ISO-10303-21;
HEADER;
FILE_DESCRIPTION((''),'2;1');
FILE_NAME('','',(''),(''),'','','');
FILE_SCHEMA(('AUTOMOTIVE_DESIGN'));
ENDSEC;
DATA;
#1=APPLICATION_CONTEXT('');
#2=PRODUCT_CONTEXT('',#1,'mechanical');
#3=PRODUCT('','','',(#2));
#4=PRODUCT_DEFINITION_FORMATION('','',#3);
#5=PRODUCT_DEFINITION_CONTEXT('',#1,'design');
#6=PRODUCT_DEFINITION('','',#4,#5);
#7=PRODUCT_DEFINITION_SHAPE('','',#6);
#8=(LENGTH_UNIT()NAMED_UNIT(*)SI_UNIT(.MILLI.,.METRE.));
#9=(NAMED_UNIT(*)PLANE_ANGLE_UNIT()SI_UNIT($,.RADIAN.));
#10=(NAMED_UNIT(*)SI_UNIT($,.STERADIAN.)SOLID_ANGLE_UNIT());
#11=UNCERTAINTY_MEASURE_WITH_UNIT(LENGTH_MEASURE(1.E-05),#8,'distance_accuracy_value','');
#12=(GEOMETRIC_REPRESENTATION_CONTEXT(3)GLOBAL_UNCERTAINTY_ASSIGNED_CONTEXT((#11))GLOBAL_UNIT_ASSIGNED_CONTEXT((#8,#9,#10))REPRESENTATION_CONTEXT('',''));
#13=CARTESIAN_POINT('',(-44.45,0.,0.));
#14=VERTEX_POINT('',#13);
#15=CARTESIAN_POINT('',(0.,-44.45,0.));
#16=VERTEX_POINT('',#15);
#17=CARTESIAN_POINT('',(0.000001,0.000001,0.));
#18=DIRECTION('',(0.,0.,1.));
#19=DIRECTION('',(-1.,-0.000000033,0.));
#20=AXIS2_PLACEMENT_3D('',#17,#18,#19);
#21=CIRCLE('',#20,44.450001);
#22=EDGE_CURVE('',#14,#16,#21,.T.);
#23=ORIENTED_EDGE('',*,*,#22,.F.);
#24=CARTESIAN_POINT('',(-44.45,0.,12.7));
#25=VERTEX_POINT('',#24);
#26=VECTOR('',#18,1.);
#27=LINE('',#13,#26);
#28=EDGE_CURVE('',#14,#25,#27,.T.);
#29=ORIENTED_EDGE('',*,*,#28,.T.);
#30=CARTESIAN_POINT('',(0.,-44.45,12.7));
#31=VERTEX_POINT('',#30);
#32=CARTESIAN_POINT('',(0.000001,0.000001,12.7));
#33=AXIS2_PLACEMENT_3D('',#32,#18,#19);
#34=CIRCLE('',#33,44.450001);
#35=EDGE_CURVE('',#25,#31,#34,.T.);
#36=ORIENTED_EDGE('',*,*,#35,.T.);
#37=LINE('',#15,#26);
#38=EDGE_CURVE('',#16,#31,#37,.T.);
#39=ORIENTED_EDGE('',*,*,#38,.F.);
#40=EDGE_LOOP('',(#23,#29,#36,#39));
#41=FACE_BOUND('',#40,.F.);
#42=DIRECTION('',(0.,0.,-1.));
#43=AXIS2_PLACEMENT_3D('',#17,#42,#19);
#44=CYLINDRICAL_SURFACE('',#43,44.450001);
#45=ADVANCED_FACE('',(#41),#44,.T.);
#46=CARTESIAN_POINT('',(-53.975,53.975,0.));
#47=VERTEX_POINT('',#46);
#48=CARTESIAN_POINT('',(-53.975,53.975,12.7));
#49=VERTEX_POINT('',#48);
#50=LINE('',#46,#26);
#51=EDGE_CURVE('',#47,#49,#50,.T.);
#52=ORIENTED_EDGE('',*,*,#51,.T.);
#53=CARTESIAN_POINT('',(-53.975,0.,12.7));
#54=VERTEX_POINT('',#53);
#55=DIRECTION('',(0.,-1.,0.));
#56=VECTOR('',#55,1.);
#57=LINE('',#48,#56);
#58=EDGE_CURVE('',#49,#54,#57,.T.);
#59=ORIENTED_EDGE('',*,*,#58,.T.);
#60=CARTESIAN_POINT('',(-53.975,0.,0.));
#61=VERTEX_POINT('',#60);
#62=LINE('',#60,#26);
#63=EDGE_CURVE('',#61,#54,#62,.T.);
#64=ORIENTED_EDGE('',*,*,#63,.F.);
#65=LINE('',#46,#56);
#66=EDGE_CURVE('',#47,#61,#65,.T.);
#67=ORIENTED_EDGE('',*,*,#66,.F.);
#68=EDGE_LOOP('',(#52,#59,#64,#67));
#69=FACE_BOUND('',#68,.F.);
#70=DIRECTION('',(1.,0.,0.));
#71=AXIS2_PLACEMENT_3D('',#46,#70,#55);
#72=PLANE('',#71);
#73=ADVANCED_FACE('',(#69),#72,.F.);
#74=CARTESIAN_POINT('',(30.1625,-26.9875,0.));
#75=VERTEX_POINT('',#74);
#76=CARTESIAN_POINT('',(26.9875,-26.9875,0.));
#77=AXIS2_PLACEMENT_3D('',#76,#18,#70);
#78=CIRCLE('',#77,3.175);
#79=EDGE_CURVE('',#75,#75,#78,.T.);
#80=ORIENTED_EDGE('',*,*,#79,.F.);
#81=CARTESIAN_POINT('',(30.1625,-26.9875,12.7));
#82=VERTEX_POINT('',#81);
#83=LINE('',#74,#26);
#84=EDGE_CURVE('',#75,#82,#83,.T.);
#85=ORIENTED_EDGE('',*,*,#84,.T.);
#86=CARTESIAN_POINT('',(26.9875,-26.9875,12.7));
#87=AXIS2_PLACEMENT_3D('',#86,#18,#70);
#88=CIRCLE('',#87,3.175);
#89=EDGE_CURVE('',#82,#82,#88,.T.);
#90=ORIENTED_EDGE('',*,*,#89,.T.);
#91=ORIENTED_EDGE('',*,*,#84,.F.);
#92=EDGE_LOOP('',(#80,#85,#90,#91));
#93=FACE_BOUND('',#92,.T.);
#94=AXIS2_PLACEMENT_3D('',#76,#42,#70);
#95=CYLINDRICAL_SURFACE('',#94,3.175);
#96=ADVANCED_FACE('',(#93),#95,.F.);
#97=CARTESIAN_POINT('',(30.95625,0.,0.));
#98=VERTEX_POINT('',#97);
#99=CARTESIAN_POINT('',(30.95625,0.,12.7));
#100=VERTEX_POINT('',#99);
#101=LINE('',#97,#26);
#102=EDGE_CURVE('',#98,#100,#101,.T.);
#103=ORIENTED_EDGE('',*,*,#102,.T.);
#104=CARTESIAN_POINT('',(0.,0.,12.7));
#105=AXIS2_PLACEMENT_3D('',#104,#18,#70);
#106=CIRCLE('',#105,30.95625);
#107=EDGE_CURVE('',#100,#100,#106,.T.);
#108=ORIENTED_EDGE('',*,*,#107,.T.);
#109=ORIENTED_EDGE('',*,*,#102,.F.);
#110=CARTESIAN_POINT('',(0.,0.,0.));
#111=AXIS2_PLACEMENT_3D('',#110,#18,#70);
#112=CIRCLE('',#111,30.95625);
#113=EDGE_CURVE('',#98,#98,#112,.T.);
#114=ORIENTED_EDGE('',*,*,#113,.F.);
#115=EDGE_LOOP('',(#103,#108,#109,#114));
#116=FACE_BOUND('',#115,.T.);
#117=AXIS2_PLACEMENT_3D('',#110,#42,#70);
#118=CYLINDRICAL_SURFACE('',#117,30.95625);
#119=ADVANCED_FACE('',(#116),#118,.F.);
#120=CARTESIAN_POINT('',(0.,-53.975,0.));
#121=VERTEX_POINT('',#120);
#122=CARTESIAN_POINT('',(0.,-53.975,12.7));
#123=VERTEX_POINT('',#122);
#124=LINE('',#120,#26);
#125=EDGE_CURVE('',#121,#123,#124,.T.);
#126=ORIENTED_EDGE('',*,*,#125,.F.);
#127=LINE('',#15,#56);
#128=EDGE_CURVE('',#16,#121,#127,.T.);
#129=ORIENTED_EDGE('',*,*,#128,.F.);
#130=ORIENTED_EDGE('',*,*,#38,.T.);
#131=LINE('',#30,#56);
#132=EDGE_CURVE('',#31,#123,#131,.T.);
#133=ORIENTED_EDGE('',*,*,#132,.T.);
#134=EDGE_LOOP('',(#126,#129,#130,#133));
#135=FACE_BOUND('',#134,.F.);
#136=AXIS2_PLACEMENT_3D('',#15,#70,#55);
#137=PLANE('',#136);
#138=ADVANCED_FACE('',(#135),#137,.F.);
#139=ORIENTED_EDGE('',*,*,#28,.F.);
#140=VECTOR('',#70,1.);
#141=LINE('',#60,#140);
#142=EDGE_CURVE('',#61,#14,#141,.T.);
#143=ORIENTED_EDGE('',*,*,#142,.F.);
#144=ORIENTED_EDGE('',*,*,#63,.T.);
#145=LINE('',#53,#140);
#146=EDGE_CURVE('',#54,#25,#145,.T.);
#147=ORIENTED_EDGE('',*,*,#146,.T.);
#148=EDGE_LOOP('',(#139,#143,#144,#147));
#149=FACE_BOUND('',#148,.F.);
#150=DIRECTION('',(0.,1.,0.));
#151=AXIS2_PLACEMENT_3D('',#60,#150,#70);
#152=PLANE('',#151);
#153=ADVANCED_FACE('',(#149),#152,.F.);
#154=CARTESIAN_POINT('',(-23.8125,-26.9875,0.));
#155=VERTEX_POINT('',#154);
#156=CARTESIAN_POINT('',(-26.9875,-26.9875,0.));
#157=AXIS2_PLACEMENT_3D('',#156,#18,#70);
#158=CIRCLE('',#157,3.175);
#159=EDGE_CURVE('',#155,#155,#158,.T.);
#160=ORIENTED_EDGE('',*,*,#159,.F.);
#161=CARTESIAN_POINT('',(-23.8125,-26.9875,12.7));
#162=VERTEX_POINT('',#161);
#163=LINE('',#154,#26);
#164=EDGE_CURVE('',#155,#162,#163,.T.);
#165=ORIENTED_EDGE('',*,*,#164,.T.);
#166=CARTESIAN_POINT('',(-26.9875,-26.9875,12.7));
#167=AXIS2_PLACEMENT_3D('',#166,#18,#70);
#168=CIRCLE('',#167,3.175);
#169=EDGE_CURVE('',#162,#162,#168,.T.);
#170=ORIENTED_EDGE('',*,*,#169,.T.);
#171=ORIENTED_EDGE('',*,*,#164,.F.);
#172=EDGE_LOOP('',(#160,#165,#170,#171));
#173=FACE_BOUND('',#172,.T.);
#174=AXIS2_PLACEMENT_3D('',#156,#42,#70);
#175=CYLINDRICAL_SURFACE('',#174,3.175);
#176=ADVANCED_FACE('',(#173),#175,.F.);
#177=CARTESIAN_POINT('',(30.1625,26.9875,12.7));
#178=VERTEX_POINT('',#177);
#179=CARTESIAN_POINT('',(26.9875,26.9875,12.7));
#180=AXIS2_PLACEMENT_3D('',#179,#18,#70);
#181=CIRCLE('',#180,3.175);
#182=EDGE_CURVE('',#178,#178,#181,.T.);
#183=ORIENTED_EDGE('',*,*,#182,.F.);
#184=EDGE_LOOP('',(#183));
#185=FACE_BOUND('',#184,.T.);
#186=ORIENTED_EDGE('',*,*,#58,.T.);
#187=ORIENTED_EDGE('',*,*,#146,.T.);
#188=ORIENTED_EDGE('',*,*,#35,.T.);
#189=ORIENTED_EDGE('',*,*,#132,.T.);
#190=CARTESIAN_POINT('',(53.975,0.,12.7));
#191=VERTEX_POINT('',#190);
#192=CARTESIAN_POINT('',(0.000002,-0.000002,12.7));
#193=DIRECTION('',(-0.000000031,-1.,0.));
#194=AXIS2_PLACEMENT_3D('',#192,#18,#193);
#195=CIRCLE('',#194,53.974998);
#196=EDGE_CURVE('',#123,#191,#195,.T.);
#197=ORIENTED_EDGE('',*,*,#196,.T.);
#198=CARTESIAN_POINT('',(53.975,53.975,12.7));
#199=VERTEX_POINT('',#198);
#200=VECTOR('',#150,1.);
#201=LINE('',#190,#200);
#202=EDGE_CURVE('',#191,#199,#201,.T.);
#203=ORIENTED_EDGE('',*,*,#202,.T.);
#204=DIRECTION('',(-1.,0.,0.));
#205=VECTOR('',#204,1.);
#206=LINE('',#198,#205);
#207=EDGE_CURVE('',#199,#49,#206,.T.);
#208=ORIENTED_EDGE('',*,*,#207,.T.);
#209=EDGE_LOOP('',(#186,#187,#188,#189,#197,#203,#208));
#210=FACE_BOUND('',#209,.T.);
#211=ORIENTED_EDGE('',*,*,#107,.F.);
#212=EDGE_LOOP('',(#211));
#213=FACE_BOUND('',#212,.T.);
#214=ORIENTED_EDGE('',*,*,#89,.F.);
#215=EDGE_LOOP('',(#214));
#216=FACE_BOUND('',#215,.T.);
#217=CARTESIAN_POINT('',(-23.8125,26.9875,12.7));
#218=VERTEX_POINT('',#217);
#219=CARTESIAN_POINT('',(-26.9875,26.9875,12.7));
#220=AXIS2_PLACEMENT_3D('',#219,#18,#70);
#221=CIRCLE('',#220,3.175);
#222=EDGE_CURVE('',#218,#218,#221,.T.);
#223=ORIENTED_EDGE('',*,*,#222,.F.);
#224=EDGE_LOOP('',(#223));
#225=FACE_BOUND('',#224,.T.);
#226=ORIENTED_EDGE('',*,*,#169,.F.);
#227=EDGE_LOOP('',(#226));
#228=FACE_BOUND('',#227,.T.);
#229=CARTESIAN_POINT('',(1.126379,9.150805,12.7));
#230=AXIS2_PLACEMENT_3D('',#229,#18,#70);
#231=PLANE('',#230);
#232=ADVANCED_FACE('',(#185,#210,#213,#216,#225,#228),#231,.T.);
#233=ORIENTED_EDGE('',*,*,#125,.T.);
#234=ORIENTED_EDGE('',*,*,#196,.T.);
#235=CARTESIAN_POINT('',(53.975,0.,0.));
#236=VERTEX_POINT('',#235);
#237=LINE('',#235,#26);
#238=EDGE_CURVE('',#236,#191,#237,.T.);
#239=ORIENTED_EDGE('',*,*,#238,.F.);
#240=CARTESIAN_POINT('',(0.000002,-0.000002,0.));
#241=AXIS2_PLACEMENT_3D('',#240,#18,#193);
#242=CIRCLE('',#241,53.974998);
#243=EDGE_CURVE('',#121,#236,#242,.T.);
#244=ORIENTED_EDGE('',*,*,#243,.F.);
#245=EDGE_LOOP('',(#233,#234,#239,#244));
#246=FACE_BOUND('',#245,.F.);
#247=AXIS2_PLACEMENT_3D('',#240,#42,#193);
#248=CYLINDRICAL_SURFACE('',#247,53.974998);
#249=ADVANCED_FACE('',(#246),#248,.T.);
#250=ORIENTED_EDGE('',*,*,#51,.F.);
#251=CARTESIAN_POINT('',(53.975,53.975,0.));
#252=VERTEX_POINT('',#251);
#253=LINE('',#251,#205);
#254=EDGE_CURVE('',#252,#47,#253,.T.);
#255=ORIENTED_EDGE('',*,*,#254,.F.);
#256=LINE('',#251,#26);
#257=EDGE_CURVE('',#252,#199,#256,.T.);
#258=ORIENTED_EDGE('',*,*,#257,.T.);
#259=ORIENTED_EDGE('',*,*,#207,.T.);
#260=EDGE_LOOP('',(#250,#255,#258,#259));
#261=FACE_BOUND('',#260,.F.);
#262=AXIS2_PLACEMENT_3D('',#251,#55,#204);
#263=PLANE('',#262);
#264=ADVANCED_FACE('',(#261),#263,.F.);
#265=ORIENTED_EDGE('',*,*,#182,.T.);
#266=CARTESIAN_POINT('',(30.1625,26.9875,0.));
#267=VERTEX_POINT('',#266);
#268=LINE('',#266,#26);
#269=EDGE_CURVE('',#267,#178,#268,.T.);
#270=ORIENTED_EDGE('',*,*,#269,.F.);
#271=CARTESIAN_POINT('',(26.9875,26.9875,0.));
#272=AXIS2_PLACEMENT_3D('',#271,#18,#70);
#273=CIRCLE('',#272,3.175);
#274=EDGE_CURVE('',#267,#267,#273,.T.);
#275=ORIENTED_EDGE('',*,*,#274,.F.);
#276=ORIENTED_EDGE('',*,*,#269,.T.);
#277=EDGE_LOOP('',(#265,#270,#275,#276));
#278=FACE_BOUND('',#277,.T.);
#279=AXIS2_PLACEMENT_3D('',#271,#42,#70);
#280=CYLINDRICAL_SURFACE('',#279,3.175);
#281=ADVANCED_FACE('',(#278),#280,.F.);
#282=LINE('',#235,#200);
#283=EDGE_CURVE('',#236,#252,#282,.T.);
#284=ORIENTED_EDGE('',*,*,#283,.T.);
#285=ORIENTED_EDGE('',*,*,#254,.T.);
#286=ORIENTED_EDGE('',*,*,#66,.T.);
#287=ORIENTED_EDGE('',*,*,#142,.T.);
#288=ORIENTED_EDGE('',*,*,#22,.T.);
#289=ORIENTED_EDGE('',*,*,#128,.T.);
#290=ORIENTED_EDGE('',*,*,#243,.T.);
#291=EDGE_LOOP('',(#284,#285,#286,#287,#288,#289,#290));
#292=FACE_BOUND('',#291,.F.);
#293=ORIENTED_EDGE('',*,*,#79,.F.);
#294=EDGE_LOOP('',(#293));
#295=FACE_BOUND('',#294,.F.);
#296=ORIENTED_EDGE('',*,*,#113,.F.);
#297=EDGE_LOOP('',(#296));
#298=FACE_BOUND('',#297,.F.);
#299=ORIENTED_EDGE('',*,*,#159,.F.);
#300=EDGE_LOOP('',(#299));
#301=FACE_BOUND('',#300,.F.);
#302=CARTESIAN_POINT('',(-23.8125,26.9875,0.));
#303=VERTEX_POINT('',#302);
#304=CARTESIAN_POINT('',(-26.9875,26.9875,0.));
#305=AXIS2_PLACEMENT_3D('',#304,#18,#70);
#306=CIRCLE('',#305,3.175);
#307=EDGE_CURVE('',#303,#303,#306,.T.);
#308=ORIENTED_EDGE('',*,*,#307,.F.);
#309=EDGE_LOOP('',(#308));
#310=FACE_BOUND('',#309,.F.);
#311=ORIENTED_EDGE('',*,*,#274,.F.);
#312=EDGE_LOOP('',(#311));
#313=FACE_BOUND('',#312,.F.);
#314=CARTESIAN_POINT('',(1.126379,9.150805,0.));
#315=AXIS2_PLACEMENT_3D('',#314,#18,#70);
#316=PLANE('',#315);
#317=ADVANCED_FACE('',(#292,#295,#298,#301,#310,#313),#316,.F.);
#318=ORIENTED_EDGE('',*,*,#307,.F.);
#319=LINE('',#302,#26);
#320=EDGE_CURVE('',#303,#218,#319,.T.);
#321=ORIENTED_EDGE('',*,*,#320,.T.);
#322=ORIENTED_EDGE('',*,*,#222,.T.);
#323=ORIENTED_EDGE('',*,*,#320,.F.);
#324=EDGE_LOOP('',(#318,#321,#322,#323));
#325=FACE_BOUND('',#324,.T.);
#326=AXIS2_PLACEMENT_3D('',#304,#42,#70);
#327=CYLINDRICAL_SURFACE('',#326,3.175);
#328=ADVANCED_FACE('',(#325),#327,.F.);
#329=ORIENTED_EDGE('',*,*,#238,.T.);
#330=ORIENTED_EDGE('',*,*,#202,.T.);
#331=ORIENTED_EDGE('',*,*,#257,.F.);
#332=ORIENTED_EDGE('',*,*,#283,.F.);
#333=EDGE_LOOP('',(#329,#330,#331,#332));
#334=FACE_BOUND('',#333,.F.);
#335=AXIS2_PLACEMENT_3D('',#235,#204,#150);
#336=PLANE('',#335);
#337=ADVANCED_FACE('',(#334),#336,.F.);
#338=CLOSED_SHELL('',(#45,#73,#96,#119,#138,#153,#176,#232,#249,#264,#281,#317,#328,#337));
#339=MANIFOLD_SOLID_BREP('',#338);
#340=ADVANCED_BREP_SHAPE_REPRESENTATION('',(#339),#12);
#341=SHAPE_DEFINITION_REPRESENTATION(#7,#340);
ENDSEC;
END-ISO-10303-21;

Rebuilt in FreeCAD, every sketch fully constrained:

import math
import FreeCAD as App
import Part
import Sketcher
Q = App.Units.Quantity

doc = App.newDocument("Part")
params = doc.addObject("Spreadsheet::Sheet", "Params")
for row, (alias, value) in enumerate([
    ("sketch1_diameter", "0.25 in"),
    ("sketch1_radius", "1.7500001 in"),
    ("sketch1_diameter2", "2.4375 in"),
    ("sketch1_radius2", "2.1249999 in"),
    ("sketch1_height", "2.125 in"),
    ("pad1_length", "0.5 in"),
], start=1):
    params.set(f"A{row}", alias)
    params.set(f"B{row}", "=" + value)
    params.setAlias(f"B{row}", alias)

body = doc.addObject("PartDesign::Body", "Body")

sketch1 = body.newObject("Sketcher::SketchObject", "Sketch")
sketch1.AttachmentSupport = (doc.getObject("XY_Plane"), [""])
sketch1.MapMode = "FlatFace"
sketch1.addGeometry([
    Part.LineSegment(App.Vector(-54, 0, 0), App.Vector(-44.5, 0, 0)),
    Part.ArcOfCircle(Part.Circle(App.Vector(0, 0, 0), App.Vector(0, 0, 1), 44.5), math.radians(-180), math.radians(-90)),
    Part.LineSegment(App.Vector(0, -44.5, 0), App.Vector(0, -54, 0)),
    Part.ArcOfCircle(Part.Circle(App.Vector(0, 0, 0), App.Vector(0, 0, 1), 54), math.radians(-90), math.radians(0)),
    Part.LineSegment(App.Vector(54, 0, 0), App.Vector(54, 54, 0)),
    Part.LineSegment(App.Vector(54, 54, 0), App.Vector(-54, 54, 0)),
    Part.LineSegment(App.Vector(-54, 54, 0), App.Vector(-54, 0, 0)),
    Part.Circle(App.Vector(-27, -27, 0), App.Vector(0, 0, 1), 3.2),
    Part.Circle(App.Vector(27, -27, 0), App.Vector(0, 0, 1), 3.2),
    Part.Circle(App.Vector(-27, 27, 0), App.Vector(0, 0, 1), 3.2),
    Part.Circle(App.Vector(0, 0, 0), App.Vector(0, 0, 1), 31),
    Part.Circle(App.Vector(27, 27, 0), App.Vector(0, 0, 1), 3.2),
], False)
sketch1.addConstraint([
    Sketcher.Constraint("Coincident", 0, 2, 1, 1),
    Sketcher.Constraint("Coincident", 1, 2, 2, 1),
    Sketcher.Constraint("Coincident", 2, 2, 3, 1),
    Sketcher.Constraint("Tangent", 3, 2, 4, 1),
    Sketcher.Constraint("Coincident", 4, 2, 5, 1),
    Sketcher.Constraint("Coincident", 5, 2, 6, 1),
    Sketcher.Constraint("Coincident", 6, 2, 0, 1),
    Sketcher.Constraint("Horizontal", 0),
    Sketcher.Constraint("Vertical", 2),
    Sketcher.Constraint("Vertical", 4),
    Sketcher.Constraint("Horizontal", 5),
    Sketcher.Constraint("Vertical", 6),
    Sketcher.Constraint("Coincident", 1, 3, -1, 1),
    Sketcher.Constraint("Coincident", 3, 3, -1, 1),
    Sketcher.Constraint("Coincident", 10, 3, -1, 1),
    Sketcher.Constraint("Equal", 7, 8),
    Sketcher.Constraint("Equal", 8, 9),
    Sketcher.Constraint("Equal", 9, 11),
    Sketcher.Constraint("Symmetric", 8, 3, 9, 3, -1, 1),
    Sketcher.Constraint("Symmetric", 7, 3, 11, 3, -1, 1),
    Sketcher.Constraint("Symmetric", 3, 2, 6, 2, -1, 1),
    Sketcher.Constraint("Symmetric", 7, 3, 8, 3, -2),
    Sketcher.Constraint("PointOnObject", 1, 2, -2),
    Sketcher.Constraint("Diameter", 7, Q("0.25 in")),
    Sketcher.Constraint("Radius", 1, Q("1.7500001 in")),
    Sketcher.Constraint("Diameter", 10, Q("2.4375 in")),
    Sketcher.Constraint("Radius", 3, Q("2.1249999 in")),
    Sketcher.Constraint("DistanceY", 4, 1, 4, 2, Q("2.125 in")),
    Sketcher.Constraint("DistanceX", 7, 3, -1, 1, Q("1.0625 in")),
    Sketcher.Constraint("DistanceY", 7, 3, -1, 1, Q("1.0625 in")),
])
sketch1.setExpression("Constraints[23]", "Params.sketch1_diameter")
sketch1.setExpression("Constraints[24]", "Params.sketch1_radius")
sketch1.setExpression("Constraints[25]", "Params.sketch1_diameter2")
sketch1.setExpression("Constraints[26]", "Params.sketch1_radius2")
sketch1.setExpression("Constraints[27]", "Params.sketch1_height")
pad1 = body.newObject("PartDesign::Pad", "Pad")
pad1.Profile = sketch1
pad1.setExpression("Length", "Params.pad1_length")

doc.recompute()
